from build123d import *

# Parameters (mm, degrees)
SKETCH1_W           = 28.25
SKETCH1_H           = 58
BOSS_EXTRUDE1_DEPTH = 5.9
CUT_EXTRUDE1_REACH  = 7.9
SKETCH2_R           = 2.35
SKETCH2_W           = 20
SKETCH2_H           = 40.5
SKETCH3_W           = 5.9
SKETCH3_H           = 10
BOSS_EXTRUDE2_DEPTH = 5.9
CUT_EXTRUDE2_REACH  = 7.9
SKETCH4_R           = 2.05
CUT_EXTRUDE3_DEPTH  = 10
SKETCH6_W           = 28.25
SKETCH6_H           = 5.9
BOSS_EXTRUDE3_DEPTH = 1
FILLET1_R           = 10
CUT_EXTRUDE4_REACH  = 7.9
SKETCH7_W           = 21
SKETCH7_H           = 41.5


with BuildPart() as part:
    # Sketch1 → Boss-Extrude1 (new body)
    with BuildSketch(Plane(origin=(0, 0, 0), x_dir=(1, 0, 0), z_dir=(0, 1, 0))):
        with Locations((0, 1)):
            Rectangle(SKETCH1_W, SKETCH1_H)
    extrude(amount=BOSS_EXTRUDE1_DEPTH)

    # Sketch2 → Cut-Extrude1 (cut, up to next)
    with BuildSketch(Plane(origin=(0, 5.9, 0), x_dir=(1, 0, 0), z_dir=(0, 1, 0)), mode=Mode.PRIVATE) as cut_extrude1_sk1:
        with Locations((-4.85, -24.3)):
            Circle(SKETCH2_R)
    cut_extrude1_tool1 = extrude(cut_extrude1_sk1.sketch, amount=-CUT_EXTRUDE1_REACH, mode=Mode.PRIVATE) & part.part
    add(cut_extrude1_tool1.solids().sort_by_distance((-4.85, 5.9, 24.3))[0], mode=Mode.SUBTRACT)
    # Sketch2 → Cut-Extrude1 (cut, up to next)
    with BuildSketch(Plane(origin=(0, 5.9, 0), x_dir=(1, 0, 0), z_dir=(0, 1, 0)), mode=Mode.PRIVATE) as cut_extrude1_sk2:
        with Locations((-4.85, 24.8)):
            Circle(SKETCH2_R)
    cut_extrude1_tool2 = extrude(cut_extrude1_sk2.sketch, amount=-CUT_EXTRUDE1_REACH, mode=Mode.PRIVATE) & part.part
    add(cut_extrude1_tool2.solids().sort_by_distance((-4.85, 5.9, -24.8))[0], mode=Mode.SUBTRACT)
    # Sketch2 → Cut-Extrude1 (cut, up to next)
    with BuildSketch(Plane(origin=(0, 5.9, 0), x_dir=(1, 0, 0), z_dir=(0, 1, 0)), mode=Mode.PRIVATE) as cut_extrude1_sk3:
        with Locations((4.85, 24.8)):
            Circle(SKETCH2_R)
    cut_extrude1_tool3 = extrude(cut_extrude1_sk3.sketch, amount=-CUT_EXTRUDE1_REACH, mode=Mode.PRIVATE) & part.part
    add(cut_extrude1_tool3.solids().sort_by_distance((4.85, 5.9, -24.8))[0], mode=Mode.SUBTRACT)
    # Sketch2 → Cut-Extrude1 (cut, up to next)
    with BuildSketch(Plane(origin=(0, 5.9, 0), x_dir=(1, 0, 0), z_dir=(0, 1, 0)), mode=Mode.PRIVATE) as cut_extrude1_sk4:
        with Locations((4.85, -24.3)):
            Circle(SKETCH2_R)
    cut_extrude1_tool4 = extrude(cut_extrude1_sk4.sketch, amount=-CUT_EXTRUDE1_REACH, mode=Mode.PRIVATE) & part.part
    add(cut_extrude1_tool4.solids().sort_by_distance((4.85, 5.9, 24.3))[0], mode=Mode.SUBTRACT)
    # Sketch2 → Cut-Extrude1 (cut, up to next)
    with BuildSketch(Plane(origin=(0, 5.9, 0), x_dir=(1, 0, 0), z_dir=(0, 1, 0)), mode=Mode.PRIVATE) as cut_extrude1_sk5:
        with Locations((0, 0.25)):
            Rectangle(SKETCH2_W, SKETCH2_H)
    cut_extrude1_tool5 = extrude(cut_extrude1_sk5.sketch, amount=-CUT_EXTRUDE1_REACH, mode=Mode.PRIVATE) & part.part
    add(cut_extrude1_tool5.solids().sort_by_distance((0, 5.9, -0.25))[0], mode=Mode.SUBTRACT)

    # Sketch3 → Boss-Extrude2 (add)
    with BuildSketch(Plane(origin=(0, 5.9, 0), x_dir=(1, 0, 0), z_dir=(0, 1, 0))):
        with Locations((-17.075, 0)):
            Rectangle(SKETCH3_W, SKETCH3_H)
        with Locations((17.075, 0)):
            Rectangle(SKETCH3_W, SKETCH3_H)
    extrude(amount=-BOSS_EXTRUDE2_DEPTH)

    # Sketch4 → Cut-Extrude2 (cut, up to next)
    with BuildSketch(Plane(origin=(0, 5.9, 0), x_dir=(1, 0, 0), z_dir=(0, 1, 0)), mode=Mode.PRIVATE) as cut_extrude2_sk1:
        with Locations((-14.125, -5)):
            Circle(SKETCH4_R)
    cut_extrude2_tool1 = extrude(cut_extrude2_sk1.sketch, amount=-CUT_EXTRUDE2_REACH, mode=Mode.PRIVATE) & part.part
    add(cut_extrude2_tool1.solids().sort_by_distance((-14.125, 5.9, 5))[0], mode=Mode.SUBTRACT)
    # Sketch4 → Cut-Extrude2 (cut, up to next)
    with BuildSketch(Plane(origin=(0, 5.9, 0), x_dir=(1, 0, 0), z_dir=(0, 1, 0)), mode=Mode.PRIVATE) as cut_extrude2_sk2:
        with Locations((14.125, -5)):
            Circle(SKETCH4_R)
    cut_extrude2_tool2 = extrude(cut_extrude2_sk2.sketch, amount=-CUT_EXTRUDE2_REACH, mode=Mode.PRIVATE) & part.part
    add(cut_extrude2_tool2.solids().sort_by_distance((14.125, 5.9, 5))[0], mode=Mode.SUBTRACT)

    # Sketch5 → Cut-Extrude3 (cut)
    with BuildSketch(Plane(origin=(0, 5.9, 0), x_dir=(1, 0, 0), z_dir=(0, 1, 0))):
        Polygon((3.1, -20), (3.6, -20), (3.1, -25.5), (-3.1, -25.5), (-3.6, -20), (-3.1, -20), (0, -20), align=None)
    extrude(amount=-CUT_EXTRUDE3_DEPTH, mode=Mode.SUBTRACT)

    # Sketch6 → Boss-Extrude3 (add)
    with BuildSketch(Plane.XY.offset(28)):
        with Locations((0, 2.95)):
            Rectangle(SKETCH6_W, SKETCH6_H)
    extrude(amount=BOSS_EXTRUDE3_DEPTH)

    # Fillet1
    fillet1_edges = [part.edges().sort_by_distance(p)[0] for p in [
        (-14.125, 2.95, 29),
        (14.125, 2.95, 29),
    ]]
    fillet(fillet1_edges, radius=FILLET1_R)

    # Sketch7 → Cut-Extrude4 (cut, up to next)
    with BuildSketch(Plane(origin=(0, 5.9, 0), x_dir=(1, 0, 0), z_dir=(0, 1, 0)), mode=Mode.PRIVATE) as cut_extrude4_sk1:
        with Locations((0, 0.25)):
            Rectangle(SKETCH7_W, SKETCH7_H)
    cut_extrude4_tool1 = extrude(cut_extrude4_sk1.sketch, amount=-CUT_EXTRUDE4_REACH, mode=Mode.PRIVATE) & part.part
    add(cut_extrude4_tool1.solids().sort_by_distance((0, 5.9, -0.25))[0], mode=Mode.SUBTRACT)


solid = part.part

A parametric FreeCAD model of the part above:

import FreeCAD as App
import Part
import Sketcher

V = App.Vector


def edges_at(feature, points):
    """Names of the edges that pass closest to the given points."""
    edges = feature.Shape.Edges
    near = lambda p: min(range(len(edges)), key=lambda i: edges[i].distToShape(Part.Vertex(*p))[0])
    return sorted({f"Edge{near(p) + 1}" for p in points})

doc = App.newDocument("Part")
params = doc.addObject("Spreadsheet::Sheet", "Params")
for row, (alias, value) in enumerate([
    ("sketch1_height", "58 mm"),
    ("sketch1_width", "28.25 mm"),
    ("pad1_length", "5.9 mm"),
    ("sketch2_diameter", "4.7 mm"),
    ("sketch3_diameter", "4.7 mm"),
    ("sketch4_diameter", "4.7 mm"),
    ("sketch5_diameter", "4.7 mm"),
    ("sketch6_width", "20 mm"),
    ("sketch6_height", "40.5 mm"),
    ("sketch7_height", "10 mm"),
    ("sketch7_width", "5.9 mm"),
    ("pad2_length", "5.9 mm"),
    ("sketch8_diameter", "4.1 mm"),
    ("sketch9_diameter", "4.1 mm"),
    ("sketch10_width", "7.2 mm"),
    ("sketch10_width2", "6.2 mm"),
    ("pocket8_length", "10 mm"),
    ("sketch11_height", "5.9 mm"),
    ("sketch11_width", "28.25 mm"),
    ("pad3_length", "1 mm"),
    ("fillet_radius", "10 mm"),
    ("sketch12_width", "21 mm"),
    ("sketch12_height", "41.5 mm"),
    ("pocket9_length", "5.9 mm"),
], start=1):
    params.set(f"A{row}", alias)
    params.set(f"B{row}", "=" + value)
    params.setAlias(f"B{row}", alias)

body = doc.addObject("PartDesign::Body", "Body")

# Sketch on XZ plane
sketch1 = doc.addObject("Sketcher::SketchObject", "Sketch")
body.addObject(sketch1)
sketch1.AttachmentSupport = (doc.XZ_Plane, [""])
sketch1.MapMode = "FlatFace"
sketch1.addGeometry([
    Part.LineSegment(V(-14, -30, 0), V(-14, 28, 0)),
    Part.LineSegment(V(-14, 28, 0), V(14, 28, 0)),
    Part.LineSegment(V(14, 28, 0), V(14, -30, 0)),
    Part.LineSegment(V(14, -30, 0), V(-14, -30, 0)),
], False)
sketch1.addConstraint([
    Sketcher.Constraint("Coincident", 0, 2, 1, 1),
    Sketcher.Constraint("Coincident", 1, 2, 2, 1),
    Sketcher.Constraint("Coincident", 2, 2, 3, 1),
    Sketcher.Constraint("Coincident", 3, 2, 0, 1),
    Sketcher.Constraint("Vertical", 0),
    Sketcher.Constraint("Horizontal", 1),
    Sketcher.Constraint("Vertical", 2),
    Sketcher.Constraint("Horizontal", 3),
    Sketcher.Constraint("DistanceY", 0, 1, 0, 2, 58.0),
    Sketcher.Constraint("DistanceY", -1, 1, 0, 2, 28.0),
    Sketcher.Constraint("DistanceX", 1, 1, 1, 2, 28.25),
    Sketcher.Constraint("DistanceX", 0, 2, -1, 1, 14.125),
])
sketch1.setExpression("Constraints[8]", "Params.sketch1_height")
sketch1.setExpression("Constraints[10]", "Params.sketch1_width")
pad1 = doc.addObject("PartDesign::Pad", "Pad")
body.addObject(pad1)
pad1.Profile = sketch1
pad1.setExpression("Length", "Params.pad1_length")
pad1.Reversed = True

# Sketch on XZ plane
sketch2 = doc.addObject("Sketcher::SketchObject", "Sketch001")
body.addObject(sketch2)
sketch2.AttachmentSupport = (doc.XZ_Plane, [""])
sketch2.MapMode = "FlatFace"
sketch2.AttachmentOffset = App.Placement(V(0, 0, -5.9), App.Rotation())
sketch2.addGeometry(Part.Circle(V(-4.8, 24.3, 0), V(0, 0, 1), 2.4), False)
sketch2.addConstraint([
    Sketcher.Constraint("Diameter", 0, 4.7),
    Sketcher.Constraint("DistanceY", -1, 1, 0, 3, 24.3),
    Sketcher.Constraint("DistanceX", 0, 3, -1, 1, 4.85),
])
sketch2.setExpression("Constraints[0]", "Params.sketch2_diameter")
pocket1 = doc.addObject("PartDesign::Pocket", "Pocket")
body.addObject(pocket1)
pocket1.Profile = sketch2
pocket1.Type = "UpToFirst"
pocket1.Reversed = True

# Sketch on XZ plane
sketch3 = doc.addObject("Sketcher::SketchObject", "Sketch002")
body.addObject(sketch3)
sketch3.AttachmentSupport = (doc.XZ_Plane, [""])
sketch3.MapMode = "FlatFace"
sketch3.AttachmentOffset = App.Placement(V(0, 0, -5.9), App.Rotation())
sketch3.addGeometry(Part.Circle(V(-4.8, -24.8, 0), V(0, 0, 1), 2.4), False)
sketch3.addConstraint([
    Sketcher.Constraint("Diameter", 0, 4.7),
    Sketcher.Constraint("DistanceY", 0, 3, -1, 1, 24.8),
    Sketcher.Constraint("DistanceX", 0, 3, -1, 1, 4.85),
])
sketch3.setExpression("Constraints[0]", "Params.sketch3_diameter")
pocket2 = doc.addObject("PartDesign::Pocket", "Pocket001")
body.addObject(pocket2)
pocket2.Profile = sketch3
pocket2.Type = "UpToFirst"
pocket2.Reversed = True

# Sketch on XZ plane
sketch4 = doc.addObject("Sketcher::SketchObject", "Sketch003")
body.addObject(sketch4)
sketch4.AttachmentSupport = (doc.XZ_Plane, [""])
sketch4.MapMode = "FlatFace"
sketch4.AttachmentOffset = App.Placement(V(0, 0, -5.9), App.Rotation())
sketch4.addGeometry(Part.Circle(V(4.8, -24.8, 0), V(0, 0, 1), 2.4), False)
sketch4.addConstraint([
    Sketcher.Constraint("Diameter", 0, 4.7),
    Sketcher.Constraint("DistanceY", 0, 3, -1, 1, 24.8),
    Sketcher.Constraint("DistanceX", -1, 1, 0, 3, 4.85),
])
sketch4.setExpression("Constraints[0]", "Params.sketch4_diameter")
pocket3 = doc.addObject("PartDesign::Pocket", "Pocket002")
body.addObject(pocket3)
pocket3.Profile = sketch4
pocket3.Type = "UpToFirst"
pocket3.Reversed = True

# Sketch on XZ plane
sketch5 = doc.addObject("Sketcher::SketchObject", "Sketch004")
body.addObject(sketch5)
sketch5.AttachmentSupport = (doc.XZ_Plane, [""])
sketch5.MapMode = "FlatFace"
sketch5.AttachmentOffset = App.Placement(V(0, 0, -5.9), App.Rotation())
sketch5.addGeometry(Part.Circle(V(4.8, 24.3, 0), V(0, 0, 1), 2.4), False)
sketch5.addConstraint([
    Sketcher.Constraint("Diameter", 0, 4.7),
    Sketcher.Constraint("DistanceY", -1, 1, 0, 3, 24.3),
    Sketcher.Constraint("DistanceX", -1, 1, 0, 3, 4.85),
])
sketch5.setExpression("Constraints[0]", "Params.sketch5_diameter")
pocket4 = doc.addObject("PartDesign::Pocket", "Pocket003")
body.addObject(pocket4)
pocket4.Profile = sketch5
pocket4.Type = "UpToFirst"
pocket4.Reversed = True

# Sketch on XZ plane
sketch6 = doc.addObject("Sketcher::SketchObject", "Sketch005")
body.addObject(sketch6)
sketch6.AttachmentSupport = (doc.XZ_Plane, [""])
sketch6.MapMode = "FlatFace"
sketch6.AttachmentOffset = App.Placement(V(0, 0, -5.9), App.Rotation())
sketch6.addGeometry([
    Part.LineSegment(V(-10, -20, 0), V(-10, 20, 0)),
    Part.LineSegment(V(-10, 20, 0), V(10, 20, 0)),
    Part.LineSegment(V(10, 20, 0), V(10, -20, 0)),
    Part.LineSegment(V(10, -20, 0), V(-10, -20, 0)),
], False)
sketch6.addConstraint([
    Sketcher.Constraint("Coincident", 0, 2, 1, 1),
    Sketcher.Constraint("Coincident", 1, 2, 2, 1),
    Sketcher.Constraint("Coincident", 2, 2, 3, 1),
    Sketcher.Constraint("Coincident", 3, 2, 0, 1),
    Sketcher.Constraint("Vertical", 0),
    Sketcher.Constraint("Horizontal", 1),
    Sketcher.Constraint("Vertical", 2),
    Sketcher.Constraint("Horizontal", 3),
    Sketcher.Constraint("DistanceX", 1, 1, 1, 2, 20.0),
    Sketcher.Constraint("DistanceY", 0, 1, 0, 2, 40.5),
    Sketcher.Constraint("DistanceX", 0, 2, -1, 1, 10.0),
    Sketcher.Constraint("DistanceY", -1, 1, 0, 2, 20.0),
])
sketch6.setExpression("Constraints[8]", "Params.sketch6_width")
sketch6.setExpression("Constraints[9]", "Params.sketch6_height")
pocket5 = doc.addObject("PartDesign::Pocket", "Pocket004")
body.addObject(pocket5)
pocket5.Profile = sketch6
pocket5.Type = "UpToFirst"
pocket5.Reversed = True

# Sketch on XZ plane
sketch7 = doc.addObject("Sketcher::SketchObject", "Sketch006")
body.addObject(sketch7)
sketch7.AttachmentSupport = (doc.XZ_Plane, [""])
sketch7.MapMode = "FlatFace"
sketch7.AttachmentOffset = App.Placement(V(0, 0, -5.9), App.Rotation())
sketch7.addGeometry([
    Part.LineSegment(V(-20, -5, 0), V(-20, 5, 0)),  # 0
    Part.LineSegment(V(-20, 5, 0), V(-14, 5, 0)),  # 1
    Part.LineSegment(V(-14, 5, 0), V(-14, -5, 0)),  # 2
    Part.LineSegment(V(-14, -5, 0), V(-20, -5, 0)),  # 3
    Part.LineSegment(V(14, -5, 0), V(14, 5, 0)),  # 4
    Part.LineSegment(V(14, 5, 0), V(20, 5, 0)),  # 5
    Part.LineSegment(V(20, 5, 0), V(20, -5, 0)),  # 6
    Part.LineSegment(V(20, -5, 0), V(14, -5, 0)),  # 7
], False)
sketch7.addConstraint([
    Sketcher.Constraint("Coincident", 0, 2, 1, 1),
    Sketcher.Constraint("Coincident", 1, 2, 2, 1),
    Sketcher.Constraint("Coincident", 2, 2, 3, 1),
    Sketcher.Constraint("Coincident", 3, 2, 0, 1),
    Sketcher.Constraint("Coincident", 4, 2, 5, 1),
    Sketcher.Constraint("Coincident", 5, 2, 6, 1),
    Sketcher.Constraint("Coincident", 6, 2, 7, 1),
    Sketcher.Constraint("Coincident", 7, 2, 4, 1),
    Sketcher.Constraint("Vertical", 0),
    Sketcher.Constraint("Horizontal", 1),
    Sketcher.Constraint("Vertical", 2),
    Sketcher.Constraint("Horizontal", 3),
    Sketcher.Constraint("Vertical", 4),
    Sketcher.Constraint("Horizontal", 5),
    Sketcher.Constraint("Vertical", 6),
    Sketcher.Constraint("Horizontal", 7),
    Sketcher.Constraint("Symmetric", 2, 2, 4, 2, -1, 1),
    Sketcher.Constraint("Symmetric", 0, 2, 6, 2, -1, 1),
    Sketcher.Constraint("Horizontal", 1, 2, 4, 2),
    Sketcher.Constraint("DistanceY", 0, 1, 0, 2, 10.0),
    Sketcher.Constraint("DistanceX", 1, 1, 1, 2, 5.9),
    Sketcher.Constraint("DistanceX", 1, 2, 4, 2, 28.25),
])
sketch7.setExpression("Constraints[19]", "Params.sketch7_height")
sketch7.setExpression("Constraints[20]", "Params.sketch7_width")
pad2 = doc.addObject("PartDesign::Pad", "Pad001")
body.addObject(pad2)
pad2.Profile = sketch7
pad2.setExpression("Length", "Params.pad2_length")

# Sketch on XZ plane
sketch8 = doc.addObject("Sketcher::SketchObject", "Sketch007")
body.addObject(sketch8)
sketch8.AttachmentSupport = (doc.XZ_Plane, [""])
sketch8.MapMode = "FlatFace"
sketch8.AttachmentOffset = App.Placement(V(0, 0, -5.9), App.Rotation())
sketch8.addGeometry(Part.Circle(V(-14.1, 5, 0), V(0, 0, 1), 2), False)
sketch8.addConstraint([
    Sketcher.Constraint("Diameter", 0, 4.1),
    Sketcher.Constraint("DistanceY", -1, 1, 0, 3, 5.0),
    Sketcher.Constraint("DistanceX", 0, 3, -1, 1, 14.125),
])
sketch8.setExpression("Constraints[0]", "Params.sketch8_diameter")
pocket6 = doc.addObject("PartDesign::Pocket", "Pocket005")
body.addObject(pocket6)
pocket6.Profile = sketch8
pocket6.Type = "UpToFirst"
pocket6.Reversed = True

# Sketch on XZ plane
sketch9 = doc.addObject("Sketcher::SketchObject", "Sketch008")
body.addObject(sketch9)
sketch9.AttachmentSupport = (doc.XZ_Plane, [""])
sketch9.MapMode = "FlatFace"
sketch9.AttachmentOffset = App.Placement(V(0, 0, -5.9), App.Rotation())
sketch9.addGeometry(Part.Circle(V(14.1, 5, 0), V(0, 0, 1), 2), False)
sketch9.addConstraint([
    Sketcher.Constraint("Diameter", 0, 4.1),
    Sketcher.Constraint("DistanceY", -1, 1, 0, 3, 5.0),
    Sketcher.Constraint("DistanceX", -1, 1, 0, 3, 14.125),
])
sketch9.setExpression("Constraints[0]", "Params.sketch9_diameter")
pocket7 = doc.addObject("PartDesign::Pocket", "Pocket006")
body.addObject(pocket7)
pocket7.Profile = sketch9
pocket7.Type = "UpToFirst"
pocket7.Reversed = True

# Sketch on XZ plane
sketch10 = doc.addObject("Sketcher::SketchObject", "Sketch009")
body.addObject(sketch10)
sketch10.AttachmentSupport = (doc.XZ_Plane, [""])
sketch10.MapMode = "FlatFace"
sketch10.AttachmentOffset = App.Placement(V(0, 0, -5.9), App.Rotation())
sketch10.addGeometry([
    Part.LineSegment(V(4, 20, 0), V(-4, 20, 0)),
    Part.LineSegment(V(-4, 20, 0), V(-3, 26, 0)),
    Part.LineSegment(V(-3, 26, 0), V(3, 26, 0)),
    Part.LineSegment(V(3, 26, 0), V(4, 20, 0)),
], False)
sketch10.addConstraint([
    Sketcher.Constraint("Coincident", 0, 2, 1, 1),
    Sketcher.Constraint("Coincident", 1, 2, 2, 1),
    Sketcher.Constraint("Coincident", 2, 2, 3, 1),
    Sketcher.Constraint("Coincident", 3, 2, 0, 1),
    Sketcher.Constraint("Horizontal", 0),
    Sketcher.Constraint("Horizontal", 2),
    Sketcher.Constraint("Equal", 1, 3),
    Sketcher.Constraint("DistanceX", 0, 2, 0, 1, 7.2),
    Sketcher.Constraint("DistanceX", 2, 1, 2, 2, 6.2),
    Sketcher.Constraint("DistanceY", -1, 1, 0, 2, 20.0),
    Sketcher.Constraint("DistanceX", 0, 2, -1, 1, 3.6),
    Sketcher.Constraint("DistanceY", -1, 1, 1, 2, 25.5),
])
sketch10.setExpression("Constraints[7]", "Params.sketch10_width")
sketch10.setExpression("Constraints[8]", "Params.sketch10_width2")
pocket8 = doc.addObject("PartDesign::Pocket", "Pocket007")
body.addObject(pocket8)
pocket8.Profile = sketch10
pocket8.setExpression("Length", "Params.pocket8_length")
pocket8.Reversed = True

# Sketch on XY plane
sketch11 = doc.addObject("Sketcher::SketchObject", "Sketch010")
body.addObject(sketch11)
sketch11.AttachmentSupport = (doc.XY_Plane, [""])
sketch11.MapMode = "FlatFace"
sketch11.AttachmentOffset = App.Placement(V(0, 0, 28), App.Rotation())
sketch11.addGeometry([
    Part.LineSegment(V(-14, 6, 0), V(-14, 0, 0)),
    Part.LineSegment(V(-14, 0, 0), V(14, 0, 0)),
    Part.LineSegment(V(14, 0, 0), V(14, 6, 0)),
    Part.LineSegment(V(14, 6, 0), V(-14, 6, 0)),
], False)
sketch11.addConstraint([
    Sketcher.Constraint("Coincident", 0, 2, 1, 1),
    Sketcher.Constraint("Coincident", 1, 2, 2, 1),
    Sketcher.Constraint("Coincident", 2, 2, 3, 1),
    Sketcher.Constraint("Coincident", 3, 2, 0, 1),
    Sketcher.Constraint("Vertical", 0),
    Sketcher.Constraint("Horizontal", 1),
    Sketcher.Constraint("Vertical", 2),
    Sketcher.Constraint("Horizontal", 3),
    Sketcher.Constraint("Symmetric", 0, 2, 1, 2, -1, 1),
    Sketcher.Constraint("DistanceY", 0, 2, 0, 1, 5.9),
    Sketcher.Constraint("DistanceX", 1, 1, 1, 2, 28.25),
])
sketch11.setExpression("Constraints[9]", "Params.sketch11_height")
sketch11.setExpression("Constraints[10]", "Params.sketch11_width")
pad3 = doc.addObject("PartDesign::Pad", "Pad002")
body.addObject(pad3)
pad3.Profile = sketch11
pad3.setExpression("Length", "Params.pad3_length")
doc.recompute()

fillet = doc.addObject("PartDesign::Fillet", "Fillet")
body.addObject(fillet)
fillet.Base = (pad3, edges_at(pad3, [(-14.125, 2.95, 29), (14.125, 2.95, 29)]))
fillet.setExpression("Radius", "Params.fillet_radius")

# Sketch on XZ plane
sketch12 = doc.addObject("Sketcher::SketchObject", "Sketch011")
body.addObject(sketch12)
sketch12.AttachmentSupport = (doc.XZ_Plane, [""])
sketch12.MapMode = "FlatFace"
sketch12.AttachmentOffset = App.Placement(V(0, 0, -5.9), App.Rotation())
sketch12.addGeometry([
    Part.LineSegment(V(-10, -21, 0), V(-10, 20, 0)),
    Part.LineSegment(V(-10, 20, 0), V(10, 20, 0)),
    Part.LineSegment(V(10, 20, 0), V(10, -21, 0)),
    Part.LineSegment(V(10, -21, 0), V(-10, -21, 0)),
], False)
sketch12.addConstraint([
    Sketcher.Constraint("Coincident", 0, 2, 1, 1),
    Sketcher.Constraint("Coincident", 1, 2, 2, 1),
    Sketcher.Constraint("Coincident", 2, 2, 3, 1),
    Sketcher.Constraint("Coincident", 3, 2, 0, 1),
    Sketcher.Constraint("Vertical", 0),
    Sketcher.Constraint("Horizontal", 1),
    Sketcher.Constraint("Vertical", 2),
    Sketcher.Constraint("Horizontal", 3),
    Sketcher.Constraint("DistanceX", 1, 1, 1, 2, 21.0),
    Sketcher.Constraint("DistanceY", 0, 1, 0, 2, 41.5),
    Sketcher.Constraint("DistanceY", 2, 2, -1, 1, 21.0),
    Sketcher.Constraint("DistanceX", 0, 2, -1, 1, 10.5),
])
sketch12.setExpression("Constraints[8]", "Params.sketch12_width")
sketch12.setExpression("Constraints[9]", "Params.sketch12_height")
pocket9 = doc.addObject("PartDesign::Pocket", "Pocket008")
body.addObject(pocket9)
pocket9.Profile = sketch12
pocket9.setExpression("Length", "Params.pocket9_length")
pocket9.Reversed = True

doc.recompute()
